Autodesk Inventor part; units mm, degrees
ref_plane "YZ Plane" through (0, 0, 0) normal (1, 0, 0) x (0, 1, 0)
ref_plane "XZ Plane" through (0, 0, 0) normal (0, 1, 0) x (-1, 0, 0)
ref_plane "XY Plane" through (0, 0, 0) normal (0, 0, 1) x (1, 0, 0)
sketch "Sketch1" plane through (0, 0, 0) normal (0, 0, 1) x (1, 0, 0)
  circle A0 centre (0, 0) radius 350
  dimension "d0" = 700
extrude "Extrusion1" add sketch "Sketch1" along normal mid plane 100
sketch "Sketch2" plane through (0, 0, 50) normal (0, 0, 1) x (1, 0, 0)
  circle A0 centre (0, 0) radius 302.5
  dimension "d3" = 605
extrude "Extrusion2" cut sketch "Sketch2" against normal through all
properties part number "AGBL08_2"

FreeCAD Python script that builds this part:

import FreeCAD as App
import Part
import Sketcher

V = App.Vector
Q = App.Units.Quantity

doc = App.newDocument("Part")
params = doc.addObject("Spreadsheet::Sheet", "Params")
for row, (alias, value) in enumerate([
    ("sketch1_diameter", "700 mm"),
    ("pad1_length", "100 mm"),
    ("sketch2_diameter", "605 mm"),
], start=1):
    params.set(f"A{row}", alias)
    params.set(f"B{row}", "=" + value)
    params.setAlias(f"B{row}", alias)

body = doc.addObject("PartDesign::Body", "Body")

# Sketch on XY plane
sketch1 = body.newObject("Sketcher::SketchObject", "Sketch")
sketch1.AttachmentSupport = (doc.getObject("XY_Plane"), [""])
sketch1.MapMode = "FlatFace"
sketch1.addGeometry(Part.Circle(V(0, 0, 0), V(0, 0, 1), 350), False)
sketch1.addConstraint(Sketcher.Constraint("Coincident", 0, 3, -1, 1))
sketch1.addConstraint(Sketcher.Constraint("Diameter", 0, Q("700 mm")))
sketch1.setExpression("Constraints[1]", "Params.sketch1_diameter")
pad1 = body.newObject("PartDesign::Pad", "Pad")
pad1.Profile = sketch1
pad1.setExpression("Length", "Params.pad1_length")
pad1.Midplane = True

# Sketch on XY plane
sketch2 = body.newObject("Sketcher::SketchObject", "Sketch001")
sketch2.AttachmentSupport = (doc.getObject("XY_Plane"), [""])
sketch2.MapMode = "FlatFace"
sketch2.AttachmentOffset = App.Placement(V(0, 0, 50), App.Rotation())
sketch2.addGeometry(Part.Circle(V(0, 0, 0), V(0, 0, 1), 302), False)
sketch2.addConstraint(Sketcher.Constraint("Coincident", 0, 3, -1, 1))
sketch2.addConstraint(Sketcher.Constraint("Diameter", 0, Q("605 mm")))
sketch2.setExpression("Constraints[1]", "Params.sketch2_diameter")
pocket1 = body.newObject("PartDesign::Pocket", "Pocket")
pocket1.Profile = sketch2
pocket1.Type = "ThroughAll"

doc.recompute()
